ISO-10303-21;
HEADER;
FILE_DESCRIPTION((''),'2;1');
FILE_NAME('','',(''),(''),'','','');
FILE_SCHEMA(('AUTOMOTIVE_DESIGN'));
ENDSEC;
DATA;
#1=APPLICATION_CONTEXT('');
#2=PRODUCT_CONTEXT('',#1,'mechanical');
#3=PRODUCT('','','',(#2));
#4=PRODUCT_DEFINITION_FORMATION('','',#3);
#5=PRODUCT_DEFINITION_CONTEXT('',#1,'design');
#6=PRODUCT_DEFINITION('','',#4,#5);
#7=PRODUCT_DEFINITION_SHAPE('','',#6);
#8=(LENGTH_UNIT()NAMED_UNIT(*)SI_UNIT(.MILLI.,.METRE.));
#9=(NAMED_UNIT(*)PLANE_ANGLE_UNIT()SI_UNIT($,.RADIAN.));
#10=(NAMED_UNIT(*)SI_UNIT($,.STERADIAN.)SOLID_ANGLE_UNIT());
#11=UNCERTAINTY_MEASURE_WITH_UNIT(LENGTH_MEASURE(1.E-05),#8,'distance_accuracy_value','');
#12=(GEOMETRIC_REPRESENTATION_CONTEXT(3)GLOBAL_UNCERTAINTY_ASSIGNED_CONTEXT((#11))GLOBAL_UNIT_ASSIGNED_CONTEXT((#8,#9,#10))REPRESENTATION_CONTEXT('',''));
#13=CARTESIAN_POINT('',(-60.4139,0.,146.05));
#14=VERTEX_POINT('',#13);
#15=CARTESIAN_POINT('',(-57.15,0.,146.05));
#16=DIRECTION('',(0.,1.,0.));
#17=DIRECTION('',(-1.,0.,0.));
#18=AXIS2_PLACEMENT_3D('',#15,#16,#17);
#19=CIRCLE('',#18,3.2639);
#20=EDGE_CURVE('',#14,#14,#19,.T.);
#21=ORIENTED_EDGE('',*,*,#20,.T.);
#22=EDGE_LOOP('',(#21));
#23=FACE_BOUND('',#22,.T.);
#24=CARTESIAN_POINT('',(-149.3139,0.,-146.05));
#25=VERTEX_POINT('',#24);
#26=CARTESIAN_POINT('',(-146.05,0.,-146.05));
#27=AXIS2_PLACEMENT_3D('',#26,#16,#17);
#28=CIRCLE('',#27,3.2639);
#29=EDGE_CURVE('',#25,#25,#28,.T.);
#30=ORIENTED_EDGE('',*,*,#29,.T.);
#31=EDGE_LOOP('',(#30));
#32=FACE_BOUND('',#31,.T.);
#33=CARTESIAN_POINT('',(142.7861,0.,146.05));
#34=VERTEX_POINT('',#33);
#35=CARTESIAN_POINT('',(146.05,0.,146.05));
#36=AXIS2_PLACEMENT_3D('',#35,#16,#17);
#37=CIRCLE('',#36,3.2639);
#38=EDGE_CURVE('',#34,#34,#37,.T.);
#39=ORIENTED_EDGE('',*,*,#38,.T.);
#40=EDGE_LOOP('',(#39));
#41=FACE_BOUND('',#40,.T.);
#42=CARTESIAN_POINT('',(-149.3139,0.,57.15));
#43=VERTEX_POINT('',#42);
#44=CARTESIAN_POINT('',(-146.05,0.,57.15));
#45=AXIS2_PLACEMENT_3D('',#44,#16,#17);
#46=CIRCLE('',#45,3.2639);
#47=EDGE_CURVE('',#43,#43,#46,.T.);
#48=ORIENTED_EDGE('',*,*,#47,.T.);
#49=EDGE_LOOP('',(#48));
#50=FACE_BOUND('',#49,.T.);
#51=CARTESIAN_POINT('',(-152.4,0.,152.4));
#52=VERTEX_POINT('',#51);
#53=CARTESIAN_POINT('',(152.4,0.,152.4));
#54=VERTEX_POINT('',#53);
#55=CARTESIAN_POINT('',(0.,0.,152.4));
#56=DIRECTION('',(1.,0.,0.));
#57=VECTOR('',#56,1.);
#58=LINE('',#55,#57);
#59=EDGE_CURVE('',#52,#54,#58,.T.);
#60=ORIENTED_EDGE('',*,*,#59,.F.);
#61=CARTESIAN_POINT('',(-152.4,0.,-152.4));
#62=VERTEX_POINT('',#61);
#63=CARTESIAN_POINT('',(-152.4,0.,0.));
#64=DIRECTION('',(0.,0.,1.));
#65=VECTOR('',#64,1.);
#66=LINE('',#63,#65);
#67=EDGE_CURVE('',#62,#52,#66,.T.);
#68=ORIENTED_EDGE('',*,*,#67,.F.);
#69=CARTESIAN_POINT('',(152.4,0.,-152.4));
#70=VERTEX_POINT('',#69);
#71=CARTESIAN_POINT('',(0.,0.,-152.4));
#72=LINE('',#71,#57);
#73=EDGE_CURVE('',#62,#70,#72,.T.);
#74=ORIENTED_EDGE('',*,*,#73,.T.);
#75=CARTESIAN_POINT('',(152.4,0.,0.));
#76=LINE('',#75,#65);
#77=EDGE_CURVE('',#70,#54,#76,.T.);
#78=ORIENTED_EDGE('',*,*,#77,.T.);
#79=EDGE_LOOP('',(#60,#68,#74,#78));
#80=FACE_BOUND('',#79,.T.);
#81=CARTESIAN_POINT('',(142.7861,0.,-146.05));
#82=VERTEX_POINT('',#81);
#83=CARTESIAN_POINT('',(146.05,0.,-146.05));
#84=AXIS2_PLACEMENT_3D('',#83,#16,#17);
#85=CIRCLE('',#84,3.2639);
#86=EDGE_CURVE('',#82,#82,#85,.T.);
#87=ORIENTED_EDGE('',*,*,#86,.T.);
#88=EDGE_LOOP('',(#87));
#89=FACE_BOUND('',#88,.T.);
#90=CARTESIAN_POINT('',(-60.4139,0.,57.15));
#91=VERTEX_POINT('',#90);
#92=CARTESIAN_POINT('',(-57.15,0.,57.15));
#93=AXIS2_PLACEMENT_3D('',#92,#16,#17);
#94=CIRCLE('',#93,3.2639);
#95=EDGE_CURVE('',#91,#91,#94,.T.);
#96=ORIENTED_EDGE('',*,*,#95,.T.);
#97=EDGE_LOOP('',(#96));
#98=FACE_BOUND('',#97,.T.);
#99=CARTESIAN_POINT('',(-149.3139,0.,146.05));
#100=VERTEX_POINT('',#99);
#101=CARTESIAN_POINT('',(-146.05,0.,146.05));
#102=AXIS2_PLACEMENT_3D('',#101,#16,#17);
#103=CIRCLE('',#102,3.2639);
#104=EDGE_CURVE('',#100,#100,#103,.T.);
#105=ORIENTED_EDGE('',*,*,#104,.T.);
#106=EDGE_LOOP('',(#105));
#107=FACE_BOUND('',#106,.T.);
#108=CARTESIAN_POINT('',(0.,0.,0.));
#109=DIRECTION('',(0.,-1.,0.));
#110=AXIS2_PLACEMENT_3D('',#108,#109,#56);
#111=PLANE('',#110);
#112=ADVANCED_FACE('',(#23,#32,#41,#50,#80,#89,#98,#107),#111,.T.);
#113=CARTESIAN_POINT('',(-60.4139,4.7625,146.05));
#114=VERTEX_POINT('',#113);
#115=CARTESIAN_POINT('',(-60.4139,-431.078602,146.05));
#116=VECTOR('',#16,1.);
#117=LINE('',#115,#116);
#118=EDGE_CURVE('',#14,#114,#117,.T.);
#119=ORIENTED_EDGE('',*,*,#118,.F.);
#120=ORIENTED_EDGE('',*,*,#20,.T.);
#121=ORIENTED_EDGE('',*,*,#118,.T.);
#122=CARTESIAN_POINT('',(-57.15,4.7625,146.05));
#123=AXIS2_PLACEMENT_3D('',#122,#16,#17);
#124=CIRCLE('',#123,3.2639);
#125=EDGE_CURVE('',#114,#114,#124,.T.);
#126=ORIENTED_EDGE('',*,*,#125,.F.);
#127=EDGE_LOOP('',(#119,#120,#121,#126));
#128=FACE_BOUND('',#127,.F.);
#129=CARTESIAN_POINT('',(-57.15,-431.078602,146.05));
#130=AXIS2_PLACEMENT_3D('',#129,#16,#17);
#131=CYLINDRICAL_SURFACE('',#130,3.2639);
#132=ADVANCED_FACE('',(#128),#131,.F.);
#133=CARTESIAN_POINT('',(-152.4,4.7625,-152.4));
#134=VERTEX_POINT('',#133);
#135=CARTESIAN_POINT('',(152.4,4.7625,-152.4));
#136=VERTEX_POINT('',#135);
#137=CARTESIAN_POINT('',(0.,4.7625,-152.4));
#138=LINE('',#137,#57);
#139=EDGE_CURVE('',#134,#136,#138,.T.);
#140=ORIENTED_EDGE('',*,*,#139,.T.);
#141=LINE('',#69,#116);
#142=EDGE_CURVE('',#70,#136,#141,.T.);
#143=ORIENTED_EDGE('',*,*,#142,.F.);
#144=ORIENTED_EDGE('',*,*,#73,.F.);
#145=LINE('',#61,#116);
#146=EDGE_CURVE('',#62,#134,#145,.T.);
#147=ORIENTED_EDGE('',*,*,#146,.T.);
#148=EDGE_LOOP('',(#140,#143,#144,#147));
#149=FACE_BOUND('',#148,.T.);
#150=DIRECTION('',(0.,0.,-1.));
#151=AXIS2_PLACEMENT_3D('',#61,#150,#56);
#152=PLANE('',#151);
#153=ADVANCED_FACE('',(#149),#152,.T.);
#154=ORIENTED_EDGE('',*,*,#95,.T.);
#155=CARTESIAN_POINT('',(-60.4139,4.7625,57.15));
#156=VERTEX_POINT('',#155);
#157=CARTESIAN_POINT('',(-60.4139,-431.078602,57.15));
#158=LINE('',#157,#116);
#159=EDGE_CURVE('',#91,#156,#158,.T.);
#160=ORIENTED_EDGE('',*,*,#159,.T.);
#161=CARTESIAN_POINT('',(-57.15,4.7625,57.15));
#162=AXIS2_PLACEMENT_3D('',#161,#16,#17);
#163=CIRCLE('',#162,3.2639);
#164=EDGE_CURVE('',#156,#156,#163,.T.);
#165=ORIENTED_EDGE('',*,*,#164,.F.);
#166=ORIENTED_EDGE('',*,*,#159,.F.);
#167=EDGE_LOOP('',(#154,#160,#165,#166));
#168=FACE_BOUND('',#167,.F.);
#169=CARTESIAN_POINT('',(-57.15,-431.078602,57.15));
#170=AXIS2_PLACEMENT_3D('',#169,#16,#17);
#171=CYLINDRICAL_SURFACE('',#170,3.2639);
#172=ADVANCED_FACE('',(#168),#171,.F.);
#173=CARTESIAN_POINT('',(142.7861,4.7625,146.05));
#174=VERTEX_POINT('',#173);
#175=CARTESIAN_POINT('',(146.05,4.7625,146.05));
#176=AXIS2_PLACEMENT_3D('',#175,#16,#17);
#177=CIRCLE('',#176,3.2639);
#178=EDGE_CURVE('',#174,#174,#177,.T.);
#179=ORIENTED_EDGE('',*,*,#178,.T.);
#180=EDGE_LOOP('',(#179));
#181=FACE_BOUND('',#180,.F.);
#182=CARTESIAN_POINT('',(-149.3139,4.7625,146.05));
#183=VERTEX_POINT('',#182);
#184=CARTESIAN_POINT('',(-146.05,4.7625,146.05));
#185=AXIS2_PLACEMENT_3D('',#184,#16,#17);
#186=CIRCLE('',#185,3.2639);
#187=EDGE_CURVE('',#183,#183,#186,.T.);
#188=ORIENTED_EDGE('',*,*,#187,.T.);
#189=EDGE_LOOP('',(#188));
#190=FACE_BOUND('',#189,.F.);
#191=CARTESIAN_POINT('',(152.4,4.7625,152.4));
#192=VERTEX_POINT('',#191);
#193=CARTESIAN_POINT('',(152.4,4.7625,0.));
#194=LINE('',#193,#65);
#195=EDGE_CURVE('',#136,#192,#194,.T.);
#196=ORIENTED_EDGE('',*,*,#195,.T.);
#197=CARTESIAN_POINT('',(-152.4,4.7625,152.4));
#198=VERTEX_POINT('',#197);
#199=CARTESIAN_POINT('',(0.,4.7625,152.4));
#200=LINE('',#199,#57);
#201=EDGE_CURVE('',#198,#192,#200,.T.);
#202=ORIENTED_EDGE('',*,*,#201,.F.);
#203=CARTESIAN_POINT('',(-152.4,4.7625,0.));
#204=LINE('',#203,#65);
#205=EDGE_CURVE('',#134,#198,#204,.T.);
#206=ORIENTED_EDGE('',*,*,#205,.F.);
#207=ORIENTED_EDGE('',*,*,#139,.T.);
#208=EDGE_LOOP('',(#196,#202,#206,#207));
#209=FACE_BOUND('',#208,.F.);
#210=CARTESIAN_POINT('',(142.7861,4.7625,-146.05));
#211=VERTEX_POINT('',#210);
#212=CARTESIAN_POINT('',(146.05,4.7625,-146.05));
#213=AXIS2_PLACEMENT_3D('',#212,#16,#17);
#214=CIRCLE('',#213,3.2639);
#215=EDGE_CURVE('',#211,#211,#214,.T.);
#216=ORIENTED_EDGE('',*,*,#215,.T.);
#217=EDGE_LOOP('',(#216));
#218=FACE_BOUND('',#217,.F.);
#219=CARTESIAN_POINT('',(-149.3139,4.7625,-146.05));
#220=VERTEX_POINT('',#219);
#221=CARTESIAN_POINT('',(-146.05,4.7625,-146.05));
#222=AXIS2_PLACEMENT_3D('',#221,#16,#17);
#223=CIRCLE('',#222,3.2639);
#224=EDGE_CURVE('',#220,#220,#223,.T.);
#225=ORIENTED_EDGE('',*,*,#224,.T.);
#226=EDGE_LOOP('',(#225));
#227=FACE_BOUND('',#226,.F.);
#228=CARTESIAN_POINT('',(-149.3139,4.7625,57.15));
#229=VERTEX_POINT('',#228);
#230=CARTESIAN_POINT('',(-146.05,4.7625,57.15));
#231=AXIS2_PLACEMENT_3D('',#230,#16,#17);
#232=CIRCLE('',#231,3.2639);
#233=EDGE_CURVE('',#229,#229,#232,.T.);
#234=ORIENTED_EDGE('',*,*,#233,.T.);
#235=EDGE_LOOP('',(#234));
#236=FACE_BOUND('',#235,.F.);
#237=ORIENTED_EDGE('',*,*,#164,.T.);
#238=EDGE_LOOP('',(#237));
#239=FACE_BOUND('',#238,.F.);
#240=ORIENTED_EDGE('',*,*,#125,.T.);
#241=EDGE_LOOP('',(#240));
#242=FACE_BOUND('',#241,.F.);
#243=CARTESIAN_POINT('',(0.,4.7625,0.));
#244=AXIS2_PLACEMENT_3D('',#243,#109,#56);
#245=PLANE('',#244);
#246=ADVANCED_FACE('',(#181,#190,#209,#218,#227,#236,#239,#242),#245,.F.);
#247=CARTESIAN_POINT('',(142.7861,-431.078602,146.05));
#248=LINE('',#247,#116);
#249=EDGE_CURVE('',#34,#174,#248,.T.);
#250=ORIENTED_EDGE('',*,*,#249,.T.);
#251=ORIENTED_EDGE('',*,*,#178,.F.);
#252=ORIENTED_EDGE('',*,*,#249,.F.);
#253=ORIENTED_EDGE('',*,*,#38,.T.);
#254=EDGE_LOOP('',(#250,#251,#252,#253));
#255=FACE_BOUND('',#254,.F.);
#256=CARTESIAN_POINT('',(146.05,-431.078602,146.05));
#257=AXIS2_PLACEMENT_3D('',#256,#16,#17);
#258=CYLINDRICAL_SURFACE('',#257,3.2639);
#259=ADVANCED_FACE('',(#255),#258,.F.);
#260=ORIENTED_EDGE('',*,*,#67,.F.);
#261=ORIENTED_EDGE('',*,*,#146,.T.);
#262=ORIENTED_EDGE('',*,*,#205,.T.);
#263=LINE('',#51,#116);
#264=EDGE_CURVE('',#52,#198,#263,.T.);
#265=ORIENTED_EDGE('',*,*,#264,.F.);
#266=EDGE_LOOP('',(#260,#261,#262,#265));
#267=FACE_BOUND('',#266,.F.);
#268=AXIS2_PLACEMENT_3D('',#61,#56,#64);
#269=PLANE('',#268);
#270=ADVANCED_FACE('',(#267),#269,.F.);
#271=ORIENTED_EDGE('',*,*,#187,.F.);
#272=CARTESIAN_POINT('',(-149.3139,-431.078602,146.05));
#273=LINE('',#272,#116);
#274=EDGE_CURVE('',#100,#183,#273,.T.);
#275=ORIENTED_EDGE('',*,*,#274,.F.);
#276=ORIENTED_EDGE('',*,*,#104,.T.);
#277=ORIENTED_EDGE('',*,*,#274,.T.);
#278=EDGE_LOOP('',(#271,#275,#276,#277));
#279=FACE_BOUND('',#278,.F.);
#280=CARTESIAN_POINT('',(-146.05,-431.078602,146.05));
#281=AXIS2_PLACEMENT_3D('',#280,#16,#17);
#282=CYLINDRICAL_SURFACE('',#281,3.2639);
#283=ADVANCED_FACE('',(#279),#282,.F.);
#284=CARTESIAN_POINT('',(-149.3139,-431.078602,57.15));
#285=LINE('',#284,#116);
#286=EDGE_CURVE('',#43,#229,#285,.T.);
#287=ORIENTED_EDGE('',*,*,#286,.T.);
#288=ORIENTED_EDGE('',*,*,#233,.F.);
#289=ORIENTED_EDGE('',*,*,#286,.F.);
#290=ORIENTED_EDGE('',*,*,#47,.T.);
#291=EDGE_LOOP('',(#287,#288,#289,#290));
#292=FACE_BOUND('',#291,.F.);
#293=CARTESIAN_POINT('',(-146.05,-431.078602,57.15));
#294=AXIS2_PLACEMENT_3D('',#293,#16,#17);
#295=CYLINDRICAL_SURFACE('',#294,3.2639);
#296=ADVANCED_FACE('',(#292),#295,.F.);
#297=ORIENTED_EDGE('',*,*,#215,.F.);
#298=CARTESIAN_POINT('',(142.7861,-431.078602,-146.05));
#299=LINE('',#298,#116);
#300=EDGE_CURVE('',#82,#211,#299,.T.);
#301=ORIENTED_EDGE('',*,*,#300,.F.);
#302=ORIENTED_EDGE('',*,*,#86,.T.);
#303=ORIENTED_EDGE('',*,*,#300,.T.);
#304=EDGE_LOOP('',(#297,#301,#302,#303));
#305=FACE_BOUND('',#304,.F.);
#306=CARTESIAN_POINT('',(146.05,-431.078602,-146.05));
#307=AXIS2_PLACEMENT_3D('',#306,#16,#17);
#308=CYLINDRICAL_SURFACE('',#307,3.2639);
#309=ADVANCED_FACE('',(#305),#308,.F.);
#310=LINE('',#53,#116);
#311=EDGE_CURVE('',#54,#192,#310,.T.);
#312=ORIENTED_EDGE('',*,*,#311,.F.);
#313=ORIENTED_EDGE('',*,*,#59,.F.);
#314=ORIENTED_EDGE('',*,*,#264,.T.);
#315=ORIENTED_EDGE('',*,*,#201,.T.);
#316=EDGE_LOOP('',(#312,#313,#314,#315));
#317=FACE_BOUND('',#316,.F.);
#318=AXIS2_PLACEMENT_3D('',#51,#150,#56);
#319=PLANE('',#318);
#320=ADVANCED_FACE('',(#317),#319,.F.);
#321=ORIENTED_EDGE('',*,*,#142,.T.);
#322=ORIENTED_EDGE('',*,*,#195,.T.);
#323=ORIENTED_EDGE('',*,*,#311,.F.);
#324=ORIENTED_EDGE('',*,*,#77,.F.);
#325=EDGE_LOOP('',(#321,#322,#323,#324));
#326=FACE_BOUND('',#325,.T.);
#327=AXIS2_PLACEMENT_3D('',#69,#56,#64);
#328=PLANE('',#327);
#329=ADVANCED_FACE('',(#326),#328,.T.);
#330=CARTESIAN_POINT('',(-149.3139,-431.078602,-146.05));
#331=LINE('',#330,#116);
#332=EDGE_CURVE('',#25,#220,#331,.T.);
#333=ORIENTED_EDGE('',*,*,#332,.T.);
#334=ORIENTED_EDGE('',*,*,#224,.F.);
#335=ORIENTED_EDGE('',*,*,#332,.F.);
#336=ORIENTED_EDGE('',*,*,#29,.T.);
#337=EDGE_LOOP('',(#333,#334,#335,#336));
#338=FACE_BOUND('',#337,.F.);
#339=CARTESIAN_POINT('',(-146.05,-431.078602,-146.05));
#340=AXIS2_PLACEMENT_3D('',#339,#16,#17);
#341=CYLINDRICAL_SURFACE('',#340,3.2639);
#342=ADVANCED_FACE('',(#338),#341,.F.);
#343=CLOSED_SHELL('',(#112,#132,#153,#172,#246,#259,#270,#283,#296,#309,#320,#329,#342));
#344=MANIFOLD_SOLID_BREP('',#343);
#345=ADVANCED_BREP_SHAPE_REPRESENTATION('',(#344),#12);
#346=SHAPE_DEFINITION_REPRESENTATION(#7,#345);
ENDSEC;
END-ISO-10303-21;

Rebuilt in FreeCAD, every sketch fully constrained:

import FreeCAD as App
import Part
import Sketcher
from FreeCAD import Vector
Q = App.Units.Quantity


def add_polygon(sketch, points):
    """Adds a closed chain of lines whose ends are joined by coincident constraints."""
    first, n = sketch.GeometryCount, len(points)
    for a, b in zip(points, points[1:] + points[:1]):
        sketch.addGeometry(Part.LineSegment(App.Vector(*a, 0), App.Vector(*b, 0)), False)
    for i in range(n):
        sketch.addConstraint(Sketcher.Constraint("Coincident", first + i, 2, first + (i + 1) % n, 1))

doc = App.newDocument("Part")
body = doc.addObject("PartDesign::Body", "Body")

# Sketch on XZ plane
sketch1 = doc.addObject("Sketcher::SketchObject", "Sketch")
body.addObject(sketch1)
sketch1.AttachmentSupport = (doc.XZ_Plane, [""])
sketch1.MapMode = "FlatFace"
add_polygon(sketch1, [(-152, 152), (-152, -152), (152, -152), (152, 152)])  # lines 0-3
sketch1.addConstraint([
    Sketcher.Constraint("Vertical", 0),
    Sketcher.Constraint("Horizontal", 1),
    Sketcher.Constraint("Vertical", 2),
    Sketcher.Constraint("Horizontal", 3),
    Sketcher.Constraint("Symmetric", 0, 2, 2, 2, -1, 1),
    Sketcher.Constraint("Equal", 3, 0),
    Sketcher.Constraint("DistanceX", 1, 1, 1, 2, Q("12 in")),
])
pad1 = doc.addObject("PartDesign::Pad", "Pad")
body.addObject(pad1)
pad1.Profile = sketch1
pad1.Length = Q("0.1875 in")
pad1.Reversed = True

# Sketch on XZ plane
sketch2 = doc.addObject("Sketcher::SketchObject", "Sketch001")
body.addObject(sketch2)
sketch2.AttachmentSupport = (doc.XZ_Plane, [""])
sketch2.MapMode = "FlatFace"
sketch2.addGeometry([
    Part.Circle(Vector(-146.1, 146.1, 0), Vector(0, 0, 1), 3.3),
    Part.Circle(Vector(146.1, -146.1, 0), Vector(0, 0, 1), 3.3),
    Part.Circle(Vector(146.1, 146.1, 0), Vector(0, 0, 1), 3.3),
    Part.Circle(Vector(-146.1, -146.1, 0), Vector(0, 0, 1), 3.3),
], False)
sketch2.addConstraint([
    Sketcher.Constraint("Equal", 0, 1),
    Sketcher.Constraint("Equal", 1, 2),
    Sketcher.Constraint("Equal", 2, 3),
    Sketcher.Constraint("Symmetric", 0, 3, 1, 3, -1, 1),
    Sketcher.Constraint("Symmetric", 2, 3, 3, 3, -1, 1),
    Sketcher.Constraint("Symmetric", 0, 3, 2, 3, -2),
    Sketcher.Constraint("Diameter", 0, Q("0.257 in")),
    Sketcher.Constraint("DistanceX", 0, 3, 1, 3, Q("11.5 in")),
    Sketcher.Constraint("DistanceY", 1, 3, 0, 3, Q("11.5 in")),
])
doc.recompute()
hole = doc.addObject("PartDesign::Hole", "Hole")
body.addObject(hole)
hole.Profile = sketch2
hole.ThreadType = "None"
hole.Diameter = Q("0.257 in")
hole.DepthType = "ThroughAll"

# Sketch on XZ plane
sketch3 = doc.addObject("Sketcher::SketchObject", "Sketch002")
body.addObject(sketch3)
sketch3.AttachmentSupport = (doc.XZ_Plane, [""])
sketch3.MapMode = "FlatFace"
sketch3.addGeometry([
    Part.Circle(Vector(-146.1, 146.1, 0), Vector(0, 0, 1), 3.3),
    Part.Circle(Vector(-57.1, 146.1, 0), Vector(0, 0, 1), 3.3),
    Part.Circle(Vector(-57.1, 57.1, 0), Vector(0, 0, 1), 3.3),
    Part.Circle(Vector(-146.1, 57.1, 0), Vector(0, 0, 1), 3.3),
], False)
sketch3.addConstraint([
    Sketcher.Constraint("Equal", 0, 1),
    Sketcher.Constraint("Equal", 1, 2),
    Sketcher.Constraint("Equal", 2, 3),
    Sketcher.Constraint("Horizontal", 0, 3, 1, 3),
    Sketcher.Constraint("Horizontal", 2, 3, 3, 3),
    Sketcher.Constraint("Vertical", 1, 3, 2, 3),
    Sketcher.Constraint("Vertical", 0, 3, 3, 3),
    Sketcher.Constraint("Diameter", 0, Q("0.257 in")),
    Sketcher.Constraint("DistanceX", 0, 3, 1, 3, Q("3.5 in")),
    Sketcher.Constraint("DistanceY", 2, 3, 1, 3, Q("3.5 in")),
    Sketcher.Constraint("DistanceX", 0, 3, -1, 1, Q("5.75 in")),
    Sketcher.Constraint("DistanceY", -1, 1, 0, 3, Q("5.75 in")),
])
doc.recompute()
hole2 = doc.addObject("PartDesign::Hole", "Hole001")
body.addObject(hole2)
hole2.Profile = sketch3
hole2.ThreadType = "None"
hole2.Diameter = Q("0.257 in")
hole2.DepthType = "ThroughAll"

doc.recompute()
